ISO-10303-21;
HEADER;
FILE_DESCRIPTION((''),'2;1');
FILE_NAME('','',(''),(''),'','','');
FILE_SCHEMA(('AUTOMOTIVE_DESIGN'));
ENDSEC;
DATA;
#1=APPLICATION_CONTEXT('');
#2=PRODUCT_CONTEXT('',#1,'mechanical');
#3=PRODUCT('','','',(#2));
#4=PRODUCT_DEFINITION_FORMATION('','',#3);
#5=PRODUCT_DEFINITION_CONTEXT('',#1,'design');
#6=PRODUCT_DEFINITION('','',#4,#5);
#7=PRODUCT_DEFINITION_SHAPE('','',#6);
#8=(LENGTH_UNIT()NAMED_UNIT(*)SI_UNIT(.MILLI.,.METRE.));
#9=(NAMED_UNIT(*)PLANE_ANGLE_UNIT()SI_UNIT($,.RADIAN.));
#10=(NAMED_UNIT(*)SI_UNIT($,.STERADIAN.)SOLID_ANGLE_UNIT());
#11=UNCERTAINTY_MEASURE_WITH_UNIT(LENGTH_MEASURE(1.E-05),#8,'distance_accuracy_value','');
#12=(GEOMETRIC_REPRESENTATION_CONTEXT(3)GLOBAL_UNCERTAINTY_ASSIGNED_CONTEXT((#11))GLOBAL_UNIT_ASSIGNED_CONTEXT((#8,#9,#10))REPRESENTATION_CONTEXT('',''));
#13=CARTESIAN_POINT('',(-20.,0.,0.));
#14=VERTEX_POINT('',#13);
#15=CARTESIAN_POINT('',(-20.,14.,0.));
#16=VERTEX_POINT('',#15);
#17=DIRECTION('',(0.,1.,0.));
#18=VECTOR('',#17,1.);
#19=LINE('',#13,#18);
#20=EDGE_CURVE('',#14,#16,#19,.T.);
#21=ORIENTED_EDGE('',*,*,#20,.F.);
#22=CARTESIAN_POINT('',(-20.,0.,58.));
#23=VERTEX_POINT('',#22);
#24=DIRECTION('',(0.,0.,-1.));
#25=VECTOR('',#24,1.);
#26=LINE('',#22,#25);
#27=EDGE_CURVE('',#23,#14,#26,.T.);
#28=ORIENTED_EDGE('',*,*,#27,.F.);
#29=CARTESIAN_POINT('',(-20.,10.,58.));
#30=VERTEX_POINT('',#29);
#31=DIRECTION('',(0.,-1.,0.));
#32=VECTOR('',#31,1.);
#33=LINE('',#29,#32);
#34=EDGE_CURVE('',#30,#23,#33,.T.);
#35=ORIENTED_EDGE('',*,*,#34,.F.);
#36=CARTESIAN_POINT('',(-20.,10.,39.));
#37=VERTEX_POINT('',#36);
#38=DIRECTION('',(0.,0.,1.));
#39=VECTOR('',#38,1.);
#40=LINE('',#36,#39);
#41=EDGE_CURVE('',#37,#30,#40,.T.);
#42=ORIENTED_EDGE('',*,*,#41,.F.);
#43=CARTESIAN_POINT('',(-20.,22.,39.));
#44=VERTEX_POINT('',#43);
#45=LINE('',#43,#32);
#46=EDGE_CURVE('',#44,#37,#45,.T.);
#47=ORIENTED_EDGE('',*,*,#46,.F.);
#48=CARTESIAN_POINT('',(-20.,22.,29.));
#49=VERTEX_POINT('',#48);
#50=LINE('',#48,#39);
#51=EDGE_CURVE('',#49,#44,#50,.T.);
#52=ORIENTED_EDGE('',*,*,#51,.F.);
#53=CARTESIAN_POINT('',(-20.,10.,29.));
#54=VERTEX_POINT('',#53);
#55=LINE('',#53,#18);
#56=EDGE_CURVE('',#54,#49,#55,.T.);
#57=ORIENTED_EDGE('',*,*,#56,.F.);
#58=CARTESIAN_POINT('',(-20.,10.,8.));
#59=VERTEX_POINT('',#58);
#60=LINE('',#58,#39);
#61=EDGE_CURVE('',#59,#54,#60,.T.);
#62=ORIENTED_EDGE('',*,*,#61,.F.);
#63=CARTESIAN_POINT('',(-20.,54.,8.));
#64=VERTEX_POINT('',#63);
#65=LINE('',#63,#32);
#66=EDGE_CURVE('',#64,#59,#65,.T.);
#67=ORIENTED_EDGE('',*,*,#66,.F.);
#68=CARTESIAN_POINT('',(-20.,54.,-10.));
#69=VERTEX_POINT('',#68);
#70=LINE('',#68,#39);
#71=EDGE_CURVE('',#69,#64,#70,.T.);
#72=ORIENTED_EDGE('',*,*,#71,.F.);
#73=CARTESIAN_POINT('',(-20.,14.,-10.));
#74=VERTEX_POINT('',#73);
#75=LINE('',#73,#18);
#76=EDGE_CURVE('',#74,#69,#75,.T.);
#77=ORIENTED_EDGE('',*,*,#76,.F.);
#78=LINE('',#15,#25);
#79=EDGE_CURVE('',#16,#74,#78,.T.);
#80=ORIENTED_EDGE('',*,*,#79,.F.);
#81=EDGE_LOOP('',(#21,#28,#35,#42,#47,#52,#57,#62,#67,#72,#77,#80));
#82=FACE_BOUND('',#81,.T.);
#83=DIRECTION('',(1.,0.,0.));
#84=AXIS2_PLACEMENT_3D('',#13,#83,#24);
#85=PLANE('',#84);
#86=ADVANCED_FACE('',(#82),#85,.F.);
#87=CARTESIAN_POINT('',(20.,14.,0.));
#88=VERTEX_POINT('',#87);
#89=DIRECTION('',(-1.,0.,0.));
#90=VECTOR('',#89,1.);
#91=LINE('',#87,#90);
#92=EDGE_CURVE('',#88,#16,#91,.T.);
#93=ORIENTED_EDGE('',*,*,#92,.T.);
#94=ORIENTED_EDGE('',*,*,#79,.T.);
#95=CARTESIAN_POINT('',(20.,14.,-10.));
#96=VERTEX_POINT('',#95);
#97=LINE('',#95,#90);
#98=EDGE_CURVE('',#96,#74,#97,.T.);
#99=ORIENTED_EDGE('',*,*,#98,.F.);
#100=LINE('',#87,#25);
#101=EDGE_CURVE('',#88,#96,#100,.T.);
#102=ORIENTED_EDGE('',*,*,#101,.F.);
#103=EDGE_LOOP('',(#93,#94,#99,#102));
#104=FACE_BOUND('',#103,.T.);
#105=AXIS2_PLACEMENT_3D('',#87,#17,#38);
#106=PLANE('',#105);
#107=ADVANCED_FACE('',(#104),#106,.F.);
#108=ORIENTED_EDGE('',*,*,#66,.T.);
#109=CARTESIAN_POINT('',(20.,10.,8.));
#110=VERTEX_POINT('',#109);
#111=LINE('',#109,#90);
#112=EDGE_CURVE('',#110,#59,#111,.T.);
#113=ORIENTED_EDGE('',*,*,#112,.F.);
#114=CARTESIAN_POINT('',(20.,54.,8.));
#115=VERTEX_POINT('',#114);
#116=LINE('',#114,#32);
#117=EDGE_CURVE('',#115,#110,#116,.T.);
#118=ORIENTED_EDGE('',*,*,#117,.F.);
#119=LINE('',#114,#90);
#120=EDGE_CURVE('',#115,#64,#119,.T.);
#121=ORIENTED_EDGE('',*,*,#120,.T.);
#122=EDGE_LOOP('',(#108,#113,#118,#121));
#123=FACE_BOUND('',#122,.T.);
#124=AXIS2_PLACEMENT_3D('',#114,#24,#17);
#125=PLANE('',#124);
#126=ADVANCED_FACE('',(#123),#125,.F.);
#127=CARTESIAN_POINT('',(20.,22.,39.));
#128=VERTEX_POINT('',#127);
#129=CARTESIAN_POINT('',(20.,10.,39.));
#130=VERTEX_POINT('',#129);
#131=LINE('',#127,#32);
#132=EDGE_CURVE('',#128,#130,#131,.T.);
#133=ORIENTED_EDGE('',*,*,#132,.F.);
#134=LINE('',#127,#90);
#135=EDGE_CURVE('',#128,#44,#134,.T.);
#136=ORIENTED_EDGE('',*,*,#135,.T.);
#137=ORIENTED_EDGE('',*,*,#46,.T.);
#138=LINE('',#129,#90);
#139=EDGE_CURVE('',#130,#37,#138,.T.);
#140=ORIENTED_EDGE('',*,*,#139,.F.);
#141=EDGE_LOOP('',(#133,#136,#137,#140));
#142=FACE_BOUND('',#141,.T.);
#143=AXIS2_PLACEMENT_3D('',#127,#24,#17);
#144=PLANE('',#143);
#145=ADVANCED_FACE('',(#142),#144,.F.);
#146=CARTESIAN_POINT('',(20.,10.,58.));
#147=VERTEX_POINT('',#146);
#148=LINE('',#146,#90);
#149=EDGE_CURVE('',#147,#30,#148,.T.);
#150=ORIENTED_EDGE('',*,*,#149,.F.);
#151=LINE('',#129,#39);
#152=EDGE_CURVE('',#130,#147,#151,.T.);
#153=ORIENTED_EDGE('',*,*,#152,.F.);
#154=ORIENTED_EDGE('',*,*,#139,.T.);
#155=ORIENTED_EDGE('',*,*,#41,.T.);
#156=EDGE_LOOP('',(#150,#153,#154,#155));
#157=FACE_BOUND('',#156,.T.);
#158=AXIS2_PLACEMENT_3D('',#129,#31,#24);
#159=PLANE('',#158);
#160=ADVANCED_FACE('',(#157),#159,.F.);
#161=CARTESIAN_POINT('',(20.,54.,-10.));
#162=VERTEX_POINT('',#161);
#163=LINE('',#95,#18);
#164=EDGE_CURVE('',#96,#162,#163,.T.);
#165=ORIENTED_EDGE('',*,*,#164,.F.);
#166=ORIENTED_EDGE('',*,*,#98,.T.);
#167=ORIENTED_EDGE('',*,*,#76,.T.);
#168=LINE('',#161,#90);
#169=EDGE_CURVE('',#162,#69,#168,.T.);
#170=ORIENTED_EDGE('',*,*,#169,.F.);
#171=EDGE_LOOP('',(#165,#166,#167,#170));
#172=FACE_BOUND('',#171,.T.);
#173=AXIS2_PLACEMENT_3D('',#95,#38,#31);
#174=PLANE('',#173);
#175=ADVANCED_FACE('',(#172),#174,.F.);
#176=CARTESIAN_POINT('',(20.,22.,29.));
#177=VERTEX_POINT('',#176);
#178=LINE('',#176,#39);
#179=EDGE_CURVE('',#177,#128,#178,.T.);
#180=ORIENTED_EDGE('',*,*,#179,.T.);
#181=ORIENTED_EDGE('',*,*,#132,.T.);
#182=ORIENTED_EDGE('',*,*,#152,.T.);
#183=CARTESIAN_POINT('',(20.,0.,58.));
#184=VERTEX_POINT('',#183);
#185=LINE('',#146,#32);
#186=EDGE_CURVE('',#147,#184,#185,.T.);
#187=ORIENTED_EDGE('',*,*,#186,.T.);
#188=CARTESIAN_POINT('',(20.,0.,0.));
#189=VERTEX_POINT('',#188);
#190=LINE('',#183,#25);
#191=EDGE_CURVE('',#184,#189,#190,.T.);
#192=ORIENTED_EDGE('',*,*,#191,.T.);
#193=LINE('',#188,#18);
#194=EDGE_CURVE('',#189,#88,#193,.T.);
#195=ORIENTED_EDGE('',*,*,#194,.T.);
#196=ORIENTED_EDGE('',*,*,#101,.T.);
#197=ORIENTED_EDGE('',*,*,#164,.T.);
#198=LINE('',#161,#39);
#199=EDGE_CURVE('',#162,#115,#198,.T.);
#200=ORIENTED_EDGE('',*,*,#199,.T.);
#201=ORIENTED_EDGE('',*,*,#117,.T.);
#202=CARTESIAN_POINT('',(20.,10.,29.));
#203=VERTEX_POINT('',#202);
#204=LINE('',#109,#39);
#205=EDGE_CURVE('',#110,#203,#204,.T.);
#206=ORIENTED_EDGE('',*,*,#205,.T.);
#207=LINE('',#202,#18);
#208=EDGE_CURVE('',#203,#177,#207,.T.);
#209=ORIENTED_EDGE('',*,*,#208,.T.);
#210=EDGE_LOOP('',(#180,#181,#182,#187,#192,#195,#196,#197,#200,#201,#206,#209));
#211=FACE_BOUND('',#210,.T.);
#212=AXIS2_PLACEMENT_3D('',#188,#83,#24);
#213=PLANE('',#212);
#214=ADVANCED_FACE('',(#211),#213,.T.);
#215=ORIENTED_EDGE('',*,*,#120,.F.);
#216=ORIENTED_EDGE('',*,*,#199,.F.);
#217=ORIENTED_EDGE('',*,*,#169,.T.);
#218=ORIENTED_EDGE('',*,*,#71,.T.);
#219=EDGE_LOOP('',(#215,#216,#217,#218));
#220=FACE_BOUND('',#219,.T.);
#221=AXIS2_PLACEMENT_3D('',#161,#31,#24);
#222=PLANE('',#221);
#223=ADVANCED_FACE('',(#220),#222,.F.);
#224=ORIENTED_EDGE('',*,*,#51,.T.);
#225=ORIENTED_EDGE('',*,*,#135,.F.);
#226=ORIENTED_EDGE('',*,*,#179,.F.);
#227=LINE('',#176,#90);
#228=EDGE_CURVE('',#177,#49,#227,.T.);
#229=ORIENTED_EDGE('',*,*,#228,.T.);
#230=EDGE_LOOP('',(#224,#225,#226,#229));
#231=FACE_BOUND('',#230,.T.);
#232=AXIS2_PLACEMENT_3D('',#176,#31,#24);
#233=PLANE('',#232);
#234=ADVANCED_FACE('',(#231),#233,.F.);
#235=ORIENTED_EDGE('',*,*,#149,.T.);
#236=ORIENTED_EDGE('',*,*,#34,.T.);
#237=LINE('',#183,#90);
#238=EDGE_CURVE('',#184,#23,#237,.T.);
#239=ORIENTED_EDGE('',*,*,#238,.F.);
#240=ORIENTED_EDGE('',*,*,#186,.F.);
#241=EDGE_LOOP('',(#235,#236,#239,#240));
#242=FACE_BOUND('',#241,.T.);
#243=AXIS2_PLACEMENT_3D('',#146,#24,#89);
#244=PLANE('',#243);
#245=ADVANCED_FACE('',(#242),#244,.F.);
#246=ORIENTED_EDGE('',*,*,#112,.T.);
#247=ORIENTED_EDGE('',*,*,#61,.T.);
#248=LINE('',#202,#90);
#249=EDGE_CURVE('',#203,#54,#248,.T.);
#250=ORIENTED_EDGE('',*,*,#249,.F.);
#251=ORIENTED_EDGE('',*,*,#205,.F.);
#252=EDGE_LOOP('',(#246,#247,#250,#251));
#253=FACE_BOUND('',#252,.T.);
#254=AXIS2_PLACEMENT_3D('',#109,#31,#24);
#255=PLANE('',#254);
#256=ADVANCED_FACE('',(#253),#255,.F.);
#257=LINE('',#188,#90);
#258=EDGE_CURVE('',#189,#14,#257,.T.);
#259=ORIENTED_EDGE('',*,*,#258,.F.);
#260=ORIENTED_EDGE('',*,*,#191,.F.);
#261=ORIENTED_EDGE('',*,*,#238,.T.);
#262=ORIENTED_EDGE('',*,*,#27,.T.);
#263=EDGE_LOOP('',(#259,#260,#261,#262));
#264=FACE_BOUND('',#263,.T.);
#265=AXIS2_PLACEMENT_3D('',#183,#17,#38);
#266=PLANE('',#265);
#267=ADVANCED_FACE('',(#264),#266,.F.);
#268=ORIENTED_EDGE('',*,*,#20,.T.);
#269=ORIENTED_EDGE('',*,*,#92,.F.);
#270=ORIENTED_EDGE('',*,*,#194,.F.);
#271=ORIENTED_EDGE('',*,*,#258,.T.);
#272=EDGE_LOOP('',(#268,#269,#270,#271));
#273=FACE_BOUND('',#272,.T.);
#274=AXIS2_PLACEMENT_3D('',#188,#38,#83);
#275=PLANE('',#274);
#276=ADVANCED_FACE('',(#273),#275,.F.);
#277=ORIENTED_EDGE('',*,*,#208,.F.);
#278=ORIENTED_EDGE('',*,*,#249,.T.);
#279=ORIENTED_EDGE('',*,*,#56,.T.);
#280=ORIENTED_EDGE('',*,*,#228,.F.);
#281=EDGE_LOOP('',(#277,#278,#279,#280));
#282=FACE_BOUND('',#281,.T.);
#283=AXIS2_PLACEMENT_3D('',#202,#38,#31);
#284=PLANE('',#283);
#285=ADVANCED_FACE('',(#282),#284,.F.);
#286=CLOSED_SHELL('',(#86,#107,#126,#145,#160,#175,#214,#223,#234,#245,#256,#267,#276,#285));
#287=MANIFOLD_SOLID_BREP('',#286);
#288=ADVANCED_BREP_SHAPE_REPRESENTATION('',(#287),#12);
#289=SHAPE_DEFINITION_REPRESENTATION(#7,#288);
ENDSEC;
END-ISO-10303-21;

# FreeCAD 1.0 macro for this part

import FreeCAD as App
import Part
import Sketcher


def add_polygon(sketch, points):
    """Adds a closed chain of lines whose ends are joined by coincident constraints."""
    first, n = sketch.GeometryCount, len(points)
    for a, b in zip(points, points[1:] + points[:1]):
        sketch.addGeometry(Part.LineSegment(App.Vector(*a, 0), App.Vector(*b, 0)), False)
    for i in range(n):
        sketch.addConstraint(Sketcher.Constraint("Coincident", first + i, 2, first + (i + 1) % n, 1))

doc = App.newDocument("Part")
body = doc.addObject("PartDesign::Body", "Body")

# Sketch on YZ plane
sketch1 = body.newObject("Sketcher::SketchObject", "Sketch")
sketch1.AttachmentSupport = (doc.getObject("YZ_Plane"), [""])
sketch1.MapMode = "FlatFace"
add_polygon(sketch1, [(0, 0), (14, 0), (14, -10), (54, -10), (54, 8), (10, 8), (10, 29), (22, 29), (22, 39), (10, 39), (10, 58), (0, 58)])  # lines 0-11
sketch1.addConstraint(Sketcher.Constraint("Horizontal", 0))
sketch1.addConstraint(Sketcher.Constraint("Vertical", 1))
sketch1.addConstraint(Sketcher.Constraint("Horizontal", 2))
sketch1.addConstraint(Sketcher.Constraint("Vertical", 3))
sketch1.addConstraint(Sketcher.Constraint("Horizontal", 4))
sketch1.addConstraint(Sketcher.Constraint("Vertical", 5))
sketch1.addConstraint(Sketcher.Constraint("Horizontal", 6))
sketch1.addConstraint(Sketcher.Constraint("Vertical", 7))
sketch1.addConstraint(Sketcher.Constraint("Horizontal", 8))
sketch1.addConstraint(Sketcher.Constraint("Vertical", 9))
sketch1.addConstraint(Sketcher.Constraint("Horizontal", 10))
sketch1.addConstraint(Sketcher.Constraint("Vertical", 11))
sketch1.addConstraint(Sketcher.Constraint("Coincident", 11, 2, -1, 1))
sketch1.addConstraint(Sketcher.Constraint("Vertical", 5, 2, 8, 2))
sketch1.addConstraint(Sketcher.Constraint("Equal", 10, 1))
sketch1.addConstraint(Sketcher.Constraint("Equal", 1, 7))
sketch1.addConstraint(Sketcher.Constraint("DistanceX", 0, 1, 0, 2, 14.0))
sketch1.addConstraint(Sketcher.Constraint("DistanceX", 2, 1, 2, 2, 40.0))
sketch1.addConstraint(Sketcher.Constraint("DistanceX", 4, 2, 4, 1, 44.0))
sketch1.addConstraint(Sketcher.Constraint("DistanceX", 6, 1, 6, 2, 12.0))
sketch1.addConstraint(Sketcher.Constraint("DistanceY", 3, 1, 3, 2, 18.0))
sketch1.addConstraint(Sketcher.Constraint("DistanceY", 5, 1, 5, 2, 21.0))
sketch1.addConstraint(Sketcher.Constraint("DistanceY", 9, 1, 9, 2, 19.0))
pad1 = body.newObject("PartDesign::Pad", "Pad")
pad1.Profile = sketch1
pad1.Length = 40
pad1.Midplane = True

doc.recompute()
